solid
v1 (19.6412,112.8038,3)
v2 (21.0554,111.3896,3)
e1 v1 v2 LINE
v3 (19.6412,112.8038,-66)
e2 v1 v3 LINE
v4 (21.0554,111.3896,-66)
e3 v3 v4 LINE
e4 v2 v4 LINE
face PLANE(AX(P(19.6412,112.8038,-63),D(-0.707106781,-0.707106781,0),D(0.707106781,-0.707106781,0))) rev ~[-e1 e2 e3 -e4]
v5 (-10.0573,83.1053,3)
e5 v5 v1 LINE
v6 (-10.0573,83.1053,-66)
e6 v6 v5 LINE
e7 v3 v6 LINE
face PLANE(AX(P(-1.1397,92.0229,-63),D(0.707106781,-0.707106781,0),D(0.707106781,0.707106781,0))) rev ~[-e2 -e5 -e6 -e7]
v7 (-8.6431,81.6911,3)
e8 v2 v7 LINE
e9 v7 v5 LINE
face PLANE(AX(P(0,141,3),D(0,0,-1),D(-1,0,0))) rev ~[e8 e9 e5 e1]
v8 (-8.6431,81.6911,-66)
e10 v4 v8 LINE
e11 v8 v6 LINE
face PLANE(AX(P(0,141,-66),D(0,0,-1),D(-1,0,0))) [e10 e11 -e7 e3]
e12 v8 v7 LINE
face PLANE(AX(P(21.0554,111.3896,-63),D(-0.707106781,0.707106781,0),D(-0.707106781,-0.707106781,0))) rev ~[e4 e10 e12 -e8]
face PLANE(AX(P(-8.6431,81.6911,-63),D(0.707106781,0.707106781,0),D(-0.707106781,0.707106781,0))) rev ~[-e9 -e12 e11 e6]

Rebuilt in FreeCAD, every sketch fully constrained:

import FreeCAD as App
import Part
import Sketcher
from FreeCAD import Vector
Q = App.Units.Quantity


def add_polygon(sketch, points):
    """Adds a closed chain of lines whose ends are joined by coincident constraints."""
    first, n = sketch.GeometryCount, len(points)
    for a, b in zip(points, points[1:] + points[:1]):
        sketch.addGeometry(Part.LineSegment(App.Vector(*a, 0), App.Vector(*b, 0)), False)
    for i in range(n):
        sketch.addConstraint(Sketcher.Constraint("Coincident", first + i, 2, first + (i + 1) % n, 1))

doc = App.newDocument("Part")
body = doc.addObject("PartDesign::Body", "Body")

sketch1 = body.newObject("Sketcher::SketchObject", "Sketch")
sketch1.AttachmentSupport = (doc.getObject("XY_Plane"), [""])
sketch1.MapMode = "FlatFace"
sketch1.AttachmentOffset = App.Placement(Vector(0, 0, -63), App.Rotation())
add_polygon(sketch1, [(-10.0573, 83.1053), (19.6412, 112.8038), (21.0554, 111.3896), (-8.6431, 81.6911)])
sketch1.addConstraint([
    Sketcher.Constraint("Perpendicular", 0, 1),
    Sketcher.Constraint("Perpendicular", 1, 2),
    Sketcher.Constraint("Perpendicular", 2, 3),
    Sketcher.Constraint("Angle", 2, Q("-135 deg")),
    Sketcher.Constraint("Distance", 0, Q("42 mm")),
    Sketcher.Constraint("Distance", 1, Q("2 mm")),
    Sketcher.Constraint("DistanceX", 2, 2, -1, 1, Q("8.643 mm")),
    Sketcher.Constraint("DistanceY", -1, 1, 2, 2, Q("81.691 mm")),
])
pad1 = body.newObject("PartDesign::Pad", "Pad")
pad1.Profile = sketch1
pad1.Type = "TwoLengths"
pad1.Length = 3
pad1.Length2 = 66
pad1.Reversed = True

doc.recompute()
